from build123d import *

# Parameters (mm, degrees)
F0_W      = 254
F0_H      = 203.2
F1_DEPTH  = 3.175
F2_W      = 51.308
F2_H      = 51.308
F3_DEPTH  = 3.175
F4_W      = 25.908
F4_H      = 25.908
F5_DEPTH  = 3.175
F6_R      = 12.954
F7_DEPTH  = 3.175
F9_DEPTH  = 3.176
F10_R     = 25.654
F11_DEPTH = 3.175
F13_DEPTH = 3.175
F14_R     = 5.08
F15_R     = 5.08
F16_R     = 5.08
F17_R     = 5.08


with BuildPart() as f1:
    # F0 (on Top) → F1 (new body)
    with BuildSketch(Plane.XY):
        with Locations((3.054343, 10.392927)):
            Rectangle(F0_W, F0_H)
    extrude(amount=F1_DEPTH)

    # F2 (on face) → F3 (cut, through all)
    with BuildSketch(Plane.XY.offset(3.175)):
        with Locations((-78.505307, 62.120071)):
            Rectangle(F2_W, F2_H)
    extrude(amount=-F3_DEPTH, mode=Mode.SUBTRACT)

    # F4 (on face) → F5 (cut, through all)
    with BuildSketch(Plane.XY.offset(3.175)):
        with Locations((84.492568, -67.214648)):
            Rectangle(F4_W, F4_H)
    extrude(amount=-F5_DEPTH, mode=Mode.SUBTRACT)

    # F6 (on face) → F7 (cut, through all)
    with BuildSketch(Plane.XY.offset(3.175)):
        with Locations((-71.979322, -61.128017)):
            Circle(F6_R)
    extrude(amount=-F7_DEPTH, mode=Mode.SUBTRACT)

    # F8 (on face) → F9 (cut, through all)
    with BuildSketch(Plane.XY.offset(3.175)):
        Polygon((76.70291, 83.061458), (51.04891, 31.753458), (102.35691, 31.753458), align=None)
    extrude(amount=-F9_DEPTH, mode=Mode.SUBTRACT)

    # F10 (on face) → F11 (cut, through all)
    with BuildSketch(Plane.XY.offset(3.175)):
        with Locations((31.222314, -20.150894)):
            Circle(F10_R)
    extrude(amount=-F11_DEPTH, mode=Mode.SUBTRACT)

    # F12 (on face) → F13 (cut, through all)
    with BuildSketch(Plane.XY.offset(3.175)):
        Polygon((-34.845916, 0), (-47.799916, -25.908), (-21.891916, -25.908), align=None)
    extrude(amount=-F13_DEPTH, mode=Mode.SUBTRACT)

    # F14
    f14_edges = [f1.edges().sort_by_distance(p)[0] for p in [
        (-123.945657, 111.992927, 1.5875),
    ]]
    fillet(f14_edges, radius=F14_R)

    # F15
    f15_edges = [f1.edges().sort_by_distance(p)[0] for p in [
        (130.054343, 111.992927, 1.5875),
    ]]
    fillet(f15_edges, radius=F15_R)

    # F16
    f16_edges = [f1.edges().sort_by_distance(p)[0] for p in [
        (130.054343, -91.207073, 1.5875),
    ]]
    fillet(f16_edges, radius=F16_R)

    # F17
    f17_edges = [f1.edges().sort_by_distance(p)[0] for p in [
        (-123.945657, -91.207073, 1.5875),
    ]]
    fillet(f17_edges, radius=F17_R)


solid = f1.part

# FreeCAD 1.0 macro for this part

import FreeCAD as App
import Part
import Sketcher
from FreeCAD import Vector
Q = App.Units.Quantity


def edges_at(feature, points):
    """Names of the edges that pass closest to the given points."""
    edges = feature.Shape.Edges
    near = lambda p: min(range(len(edges)), key=lambda i: edges[i].distToShape(Part.Vertex(*p))[0])
    return sorted({f"Edge{near(p) + 1}" for p in points})

doc = App.newDocument("Part")
body = doc.addObject("PartDesign::Body", "Body")

# Sketch on XY plane
sketch1 = doc.addObject("Sketcher::SketchObject", "Sketch")
body.addObject(sketch1)
sketch1.AttachmentSupport = (doc.XY_Plane, [""])
sketch1.MapMode = "FlatFace"
sketch1.addGeometry([
    Part.LineSegment(Vector(-123.945657, 111.992927, 0), Vector(-123.945657, -91.207073, 0)),
    Part.LineSegment(Vector(-123.945657, -91.207073, 0), Vector(130.054343, -91.207073, 0)),
    Part.LineSegment(Vector(130.054343, -91.207073, 0), Vector(130.054343, 111.992927, 0)),
    Part.LineSegment(Vector(130.054343, 111.992927, 0), Vector(-123.945657, 111.992927, 0)),
], False)
sketch1.addConstraint([
    Sketcher.Constraint("Coincident", 0, 2, 1, 1),
    Sketcher.Constraint("Coincident", 1, 2, 2, 1),
    Sketcher.Constraint("Coincident", 2, 2, 3, 1),
    Sketcher.Constraint("Coincident", 3, 2, 0, 1),
    Sketcher.Constraint("Vertical", 0),
    Sketcher.Constraint("Horizontal", 1),
    Sketcher.Constraint("Vertical", 2),
    Sketcher.Constraint("Horizontal", 3),
    Sketcher.Constraint("DistanceX", 1, 1, 1, 2, Q("10 in")),
    Sketcher.Constraint("DistanceY", 0, 2, 0, 1, Q("8 in")),
    Sketcher.Constraint("DistanceX", 0, 2, -1, 1, 123.945657),
    Sketcher.Constraint("DistanceY", 0, 2, -1, 1, 91.207073),
])
pad1 = doc.addObject("PartDesign::Pad", "Pad")
body.addObject(pad1)
pad1.Profile = sketch1
pad1.Length = Q("0.125 in")

# Sketch on XY plane
sketch2 = doc.addObject("Sketcher::SketchObject", "Sketch001")
body.addObject(sketch2)
sketch2.AttachmentSupport = (doc.XY_Plane, [""])
sketch2.MapMode = "FlatFace"
sketch2.AttachmentOffset = App.Placement(Vector(0, 0, 0.125 * 25.4), App.Rotation())
sketch2.addGeometry([
    Part.LineSegment(Vector(-104.159307, 87.774071, 0), Vector(-104.159307, 36.466071, 0)),
    Part.LineSegment(Vector(-104.159307, 36.466071, 0), Vector(-52.851307, 36.466071, 0)),
    Part.LineSegment(Vector(-52.851307, 36.466071, 0), Vector(-52.851307, 87.774071, 0)),
    Part.LineSegment(Vector(-52.851307, 87.774071, 0), Vector(-104.159307, 87.774071, 0)),
], False)
sketch2.addConstraint([
    Sketcher.Constraint("Coincident", 0, 2, 1, 1),
    Sketcher.Constraint("Coincident", 1, 2, 2, 1),
    Sketcher.Constraint("Coincident", 2, 2, 3, 1),
    Sketcher.Constraint("Coincident", 3, 2, 0, 1),
    Sketcher.Constraint("Vertical", 0),
    Sketcher.Constraint("Horizontal", 1),
    Sketcher.Constraint("Vertical", 2),
    Sketcher.Constraint("Horizontal", 3),
    Sketcher.Constraint("Equal", 3, 0),
    Sketcher.Constraint("DistanceX", 1, 1, 1, 2, Q("2.02 in")),
    Sketcher.Constraint("DistanceY", -1, 1, 0, 2, 36.466071),
    Sketcher.Constraint("DistanceX", 0, 2, -1, 1, 104.159307),
])
pocket1 = doc.addObject("PartDesign::Pocket", "Pocket")
body.addObject(pocket1)
pocket1.Profile = sketch2
pocket1.Type = "ThroughAll"

# Sketch on XY plane
sketch3 = doc.addObject("Sketcher::SketchObject", "Sketch002")
body.addObject(sketch3)
sketch3.AttachmentSupport = (doc.XY_Plane, [""])
sketch3.MapMode = "FlatFace"
sketch3.AttachmentOffset = App.Placement(Vector(0, 0, 0.125 * 25.4), App.Rotation())
sketch3.addGeometry([
    Part.LineSegment(Vector(71.538568, -54.260648, 0), Vector(71.538568, -80.168648, 0)),
    Part.LineSegment(Vector(71.538568, -80.168648, 0), Vector(97.446568, -80.168648, 0)),
    Part.LineSegment(Vector(97.446568, -80.168648, 0), Vector(97.446568, -54.260648, 0)),
    Part.LineSegment(Vector(97.446568, -54.260648, 0), Vector(71.538568, -54.260648, 0)),
], False)
sketch3.addConstraint([
    Sketcher.Constraint("Coincident", 0, 2, 1, 1),
    Sketcher.Constraint("Coincident", 1, 2, 2, 1),
    Sketcher.Constraint("Coincident", 2, 2, 3, 1),
    Sketcher.Constraint("Coincident", 3, 2, 0, 1),
    Sketcher.Constraint("Vertical", 0),
    Sketcher.Constraint("Horizontal", 1),
    Sketcher.Constraint("Vertical", 2),
    Sketcher.Constraint("Horizontal", 3),
    Sketcher.Constraint("Equal", 3, 0),
    Sketcher.Constraint("DistanceX", 1, 1, 1, 2, Q("1.02 in")),
    Sketcher.Constraint("DistanceY", 0, 2, -1, 1, 80.168648),
    Sketcher.Constraint("DistanceX", -1, 1, 1, 2, 97.446568),
])
pocket2 = doc.addObject("PartDesign::Pocket", "Pocket001")
body.addObject(pocket2)
pocket2.Profile = sketch3
pocket2.Type = "ThroughAll"

# Sketch on XY plane
sketch4 = doc.addObject("Sketcher::SketchObject", "Sketch003")
body.addObject(sketch4)
sketch4.AttachmentSupport = (doc.XY_Plane, [""])
sketch4.MapMode = "FlatFace"
sketch4.AttachmentOffset = App.Placement(Vector(0, 0, 0.125 * 25.4), App.Rotation())
sketch4.addGeometry(Part.Circle(Vector(-71.979322, -61.128017, 0), Vector(0, 0, 1), 12.954), False)
sketch4.addConstraint([
    Sketcher.Constraint("Diameter", 0, Q("1.02 in")),
    Sketcher.Constraint("DistanceX", 0, 3, -1, 1, 71.979322),
    Sketcher.Constraint("DistanceY", 0, 3, -1, 1, 61.128017),
])
pocket3 = doc.addObject("PartDesign::Pocket", "Pocket002")
body.addObject(pocket3)
pocket3.Profile = sketch4
pocket3.Type = "ThroughAll"

# Sketch on XY plane
sketch5 = doc.addObject("Sketcher::SketchObject", "Sketch004")
body.addObject(sketch5)
sketch5.AttachmentSupport = (doc.XY_Plane, [""])
sketch5.MapMode = "FlatFace"
sketch5.AttachmentOffset = App.Placement(Vector(0, 0, 0.125 * 25.4), App.Rotation())
sketch5.addGeometry([
    Part.LineSegment(Vector(76.70291, 83.061458, 0), Vector(51.04891, 31.753458, 0)),
    Part.LineSegment(Vector(51.04891, 31.753458, 0), Vector(102.35691, 31.753458, 0)),
    Part.LineSegment(Vector(102.35691, 31.753458, 0), Vector(76.70291, 83.061458, 0)),
], False)
sketch5.addConstraint([
    Sketcher.Constraint("Coincident", 0, 2, 1, 1),
    Sketcher.Constraint("Coincident", 1, 2, 2, 1),
    Sketcher.Constraint("Coincident", 2, 2, 0, 1),
    Sketcher.Constraint("Horizontal", 1),
    Sketcher.Constraint("Equal", 0, 2),
    Sketcher.Constraint("DistanceX", 1, 1, 1, 2, Q("2.02 in")),
    Sketcher.Constraint("DistanceY", 1, 2, 2, 2, Q("2.02 in")),
    Sketcher.Constraint("DistanceX", -1, 1, 0, 2, 51.04891),
    Sketcher.Constraint("DistanceY", -1, 1, 2, 2, 83.061458),
])
pocket4 = doc.addObject("PartDesign::Pocket", "Pocket003")
body.addObject(pocket4)
pocket4.Profile = sketch5
pocket4.Type = "ThroughAll"

# Sketch on XY plane
sketch6 = doc.addObject("Sketcher::SketchObject", "Sketch005")
body.addObject(sketch6)
sketch6.AttachmentSupport = (doc.XY_Plane, [""])
sketch6.MapMode = "FlatFace"
sketch6.AttachmentOffset = App.Placement(Vector(0, 0, 0.125 * 25.4), App.Rotation())
sketch6.addGeometry(Part.Circle(Vector(31.222314, -20.150894, 0), Vector(0, 0, 1), 25.654), False)
sketch6.addConstraint([
    Sketcher.Constraint("Diameter", 0, Q("2.02 in")),
    Sketcher.Constraint("DistanceX", -1, 1, 0, 3, 31.222314),
    Sketcher.Constraint("DistanceY", 0, 3, -1, 1, 20.150894),
])
pocket5 = doc.addObject("PartDesign::Pocket", "Pocket004")
body.addObject(pocket5)
pocket5.Profile = sketch6
pocket5.Type = "ThroughAll"

# Sketch on XY plane
sketch7 = doc.addObject("Sketcher::SketchObject", "Sketch006")
body.addObject(sketch7)
sketch7.AttachmentSupport = (doc.XY_Plane, [""])
sketch7.MapMode = "FlatFace"
sketch7.AttachmentOffset = App.Placement(Vector(0, 0, 0.125 * 25.4), App.Rotation())
sketch7.addGeometry([
    Part.LineSegment(Vector(-34.845916, 0, 0), Vector(-47.799916, -25.908, 0)),
    Part.LineSegment(Vector(-47.799916, -25.908, 0), Vector(-21.891916, -25.908, 0)),
    Part.LineSegment(Vector(-21.891916, -25.908, 0), Vector(-34.845916, 0, 0)),
], False)
sketch7.addConstraint([
    Sketcher.Constraint("Coincident", 0, 2, 1, 1),
    Sketcher.Constraint("Coincident", 1, 2, 2, 1),
    Sketcher.Constraint("Coincident", 2, 2, 0, 1),
    Sketcher.Constraint("Horizontal", 1),
    Sketcher.Constraint("PointOnObject", 2, 2, -1),
    Sketcher.Constraint("Equal", 0, 2),
    Sketcher.Constraint("DistanceX", 1, 1, 1, 2, Q("1.02 in")),
    Sketcher.Constraint("DistanceY", 0, 2, -1, 1, Q("1.02 in")),
    Sketcher.Constraint("DistanceX", 0, 2, -1, 1, 47.799916),
])
pocket6 = doc.addObject("PartDesign::Pocket", "Pocket005")
body.addObject(pocket6)
pocket6.Profile = sketch7
pocket6.Type = "ThroughAll"
doc.recompute()

fillet = doc.addObject("PartDesign::Fillet", "Fillet")
body.addObject(fillet)
fillet.Base = (pocket6, edges_at(pocket6, [(-123.946, 111.993, 1.587)]))
fillet.Radius = Q("0.2 in")
doc.recompute()

fillet2 = doc.addObject("PartDesign::Fillet", "Fillet001")
body.addObject(fillet2)
fillet2.Base = (fillet, edges_at(fillet, [(130.054, 111.993, 1.587)]))
fillet2.Radius = Q("0.2 in")
doc.recompute()

fillet3 = doc.addObject("PartDesign::Fillet", "Fillet002")
body.addObject(fillet3)
fillet3.Base = (fillet2, edges_at(fillet2, [(130.054, -91.207, 1.587)]))
fillet3.Radius = Q("0.2 in")
doc.recompute()

fillet4 = doc.addObject("PartDesign::Fillet", "Fillet003")
body.addObject(fillet4)
fillet4.Base = (fillet3, edges_at(fillet3, [(-123.946, -91.207, 1.587)]))
fillet4.Radius = Q("0.2 in")

doc.recompute()
